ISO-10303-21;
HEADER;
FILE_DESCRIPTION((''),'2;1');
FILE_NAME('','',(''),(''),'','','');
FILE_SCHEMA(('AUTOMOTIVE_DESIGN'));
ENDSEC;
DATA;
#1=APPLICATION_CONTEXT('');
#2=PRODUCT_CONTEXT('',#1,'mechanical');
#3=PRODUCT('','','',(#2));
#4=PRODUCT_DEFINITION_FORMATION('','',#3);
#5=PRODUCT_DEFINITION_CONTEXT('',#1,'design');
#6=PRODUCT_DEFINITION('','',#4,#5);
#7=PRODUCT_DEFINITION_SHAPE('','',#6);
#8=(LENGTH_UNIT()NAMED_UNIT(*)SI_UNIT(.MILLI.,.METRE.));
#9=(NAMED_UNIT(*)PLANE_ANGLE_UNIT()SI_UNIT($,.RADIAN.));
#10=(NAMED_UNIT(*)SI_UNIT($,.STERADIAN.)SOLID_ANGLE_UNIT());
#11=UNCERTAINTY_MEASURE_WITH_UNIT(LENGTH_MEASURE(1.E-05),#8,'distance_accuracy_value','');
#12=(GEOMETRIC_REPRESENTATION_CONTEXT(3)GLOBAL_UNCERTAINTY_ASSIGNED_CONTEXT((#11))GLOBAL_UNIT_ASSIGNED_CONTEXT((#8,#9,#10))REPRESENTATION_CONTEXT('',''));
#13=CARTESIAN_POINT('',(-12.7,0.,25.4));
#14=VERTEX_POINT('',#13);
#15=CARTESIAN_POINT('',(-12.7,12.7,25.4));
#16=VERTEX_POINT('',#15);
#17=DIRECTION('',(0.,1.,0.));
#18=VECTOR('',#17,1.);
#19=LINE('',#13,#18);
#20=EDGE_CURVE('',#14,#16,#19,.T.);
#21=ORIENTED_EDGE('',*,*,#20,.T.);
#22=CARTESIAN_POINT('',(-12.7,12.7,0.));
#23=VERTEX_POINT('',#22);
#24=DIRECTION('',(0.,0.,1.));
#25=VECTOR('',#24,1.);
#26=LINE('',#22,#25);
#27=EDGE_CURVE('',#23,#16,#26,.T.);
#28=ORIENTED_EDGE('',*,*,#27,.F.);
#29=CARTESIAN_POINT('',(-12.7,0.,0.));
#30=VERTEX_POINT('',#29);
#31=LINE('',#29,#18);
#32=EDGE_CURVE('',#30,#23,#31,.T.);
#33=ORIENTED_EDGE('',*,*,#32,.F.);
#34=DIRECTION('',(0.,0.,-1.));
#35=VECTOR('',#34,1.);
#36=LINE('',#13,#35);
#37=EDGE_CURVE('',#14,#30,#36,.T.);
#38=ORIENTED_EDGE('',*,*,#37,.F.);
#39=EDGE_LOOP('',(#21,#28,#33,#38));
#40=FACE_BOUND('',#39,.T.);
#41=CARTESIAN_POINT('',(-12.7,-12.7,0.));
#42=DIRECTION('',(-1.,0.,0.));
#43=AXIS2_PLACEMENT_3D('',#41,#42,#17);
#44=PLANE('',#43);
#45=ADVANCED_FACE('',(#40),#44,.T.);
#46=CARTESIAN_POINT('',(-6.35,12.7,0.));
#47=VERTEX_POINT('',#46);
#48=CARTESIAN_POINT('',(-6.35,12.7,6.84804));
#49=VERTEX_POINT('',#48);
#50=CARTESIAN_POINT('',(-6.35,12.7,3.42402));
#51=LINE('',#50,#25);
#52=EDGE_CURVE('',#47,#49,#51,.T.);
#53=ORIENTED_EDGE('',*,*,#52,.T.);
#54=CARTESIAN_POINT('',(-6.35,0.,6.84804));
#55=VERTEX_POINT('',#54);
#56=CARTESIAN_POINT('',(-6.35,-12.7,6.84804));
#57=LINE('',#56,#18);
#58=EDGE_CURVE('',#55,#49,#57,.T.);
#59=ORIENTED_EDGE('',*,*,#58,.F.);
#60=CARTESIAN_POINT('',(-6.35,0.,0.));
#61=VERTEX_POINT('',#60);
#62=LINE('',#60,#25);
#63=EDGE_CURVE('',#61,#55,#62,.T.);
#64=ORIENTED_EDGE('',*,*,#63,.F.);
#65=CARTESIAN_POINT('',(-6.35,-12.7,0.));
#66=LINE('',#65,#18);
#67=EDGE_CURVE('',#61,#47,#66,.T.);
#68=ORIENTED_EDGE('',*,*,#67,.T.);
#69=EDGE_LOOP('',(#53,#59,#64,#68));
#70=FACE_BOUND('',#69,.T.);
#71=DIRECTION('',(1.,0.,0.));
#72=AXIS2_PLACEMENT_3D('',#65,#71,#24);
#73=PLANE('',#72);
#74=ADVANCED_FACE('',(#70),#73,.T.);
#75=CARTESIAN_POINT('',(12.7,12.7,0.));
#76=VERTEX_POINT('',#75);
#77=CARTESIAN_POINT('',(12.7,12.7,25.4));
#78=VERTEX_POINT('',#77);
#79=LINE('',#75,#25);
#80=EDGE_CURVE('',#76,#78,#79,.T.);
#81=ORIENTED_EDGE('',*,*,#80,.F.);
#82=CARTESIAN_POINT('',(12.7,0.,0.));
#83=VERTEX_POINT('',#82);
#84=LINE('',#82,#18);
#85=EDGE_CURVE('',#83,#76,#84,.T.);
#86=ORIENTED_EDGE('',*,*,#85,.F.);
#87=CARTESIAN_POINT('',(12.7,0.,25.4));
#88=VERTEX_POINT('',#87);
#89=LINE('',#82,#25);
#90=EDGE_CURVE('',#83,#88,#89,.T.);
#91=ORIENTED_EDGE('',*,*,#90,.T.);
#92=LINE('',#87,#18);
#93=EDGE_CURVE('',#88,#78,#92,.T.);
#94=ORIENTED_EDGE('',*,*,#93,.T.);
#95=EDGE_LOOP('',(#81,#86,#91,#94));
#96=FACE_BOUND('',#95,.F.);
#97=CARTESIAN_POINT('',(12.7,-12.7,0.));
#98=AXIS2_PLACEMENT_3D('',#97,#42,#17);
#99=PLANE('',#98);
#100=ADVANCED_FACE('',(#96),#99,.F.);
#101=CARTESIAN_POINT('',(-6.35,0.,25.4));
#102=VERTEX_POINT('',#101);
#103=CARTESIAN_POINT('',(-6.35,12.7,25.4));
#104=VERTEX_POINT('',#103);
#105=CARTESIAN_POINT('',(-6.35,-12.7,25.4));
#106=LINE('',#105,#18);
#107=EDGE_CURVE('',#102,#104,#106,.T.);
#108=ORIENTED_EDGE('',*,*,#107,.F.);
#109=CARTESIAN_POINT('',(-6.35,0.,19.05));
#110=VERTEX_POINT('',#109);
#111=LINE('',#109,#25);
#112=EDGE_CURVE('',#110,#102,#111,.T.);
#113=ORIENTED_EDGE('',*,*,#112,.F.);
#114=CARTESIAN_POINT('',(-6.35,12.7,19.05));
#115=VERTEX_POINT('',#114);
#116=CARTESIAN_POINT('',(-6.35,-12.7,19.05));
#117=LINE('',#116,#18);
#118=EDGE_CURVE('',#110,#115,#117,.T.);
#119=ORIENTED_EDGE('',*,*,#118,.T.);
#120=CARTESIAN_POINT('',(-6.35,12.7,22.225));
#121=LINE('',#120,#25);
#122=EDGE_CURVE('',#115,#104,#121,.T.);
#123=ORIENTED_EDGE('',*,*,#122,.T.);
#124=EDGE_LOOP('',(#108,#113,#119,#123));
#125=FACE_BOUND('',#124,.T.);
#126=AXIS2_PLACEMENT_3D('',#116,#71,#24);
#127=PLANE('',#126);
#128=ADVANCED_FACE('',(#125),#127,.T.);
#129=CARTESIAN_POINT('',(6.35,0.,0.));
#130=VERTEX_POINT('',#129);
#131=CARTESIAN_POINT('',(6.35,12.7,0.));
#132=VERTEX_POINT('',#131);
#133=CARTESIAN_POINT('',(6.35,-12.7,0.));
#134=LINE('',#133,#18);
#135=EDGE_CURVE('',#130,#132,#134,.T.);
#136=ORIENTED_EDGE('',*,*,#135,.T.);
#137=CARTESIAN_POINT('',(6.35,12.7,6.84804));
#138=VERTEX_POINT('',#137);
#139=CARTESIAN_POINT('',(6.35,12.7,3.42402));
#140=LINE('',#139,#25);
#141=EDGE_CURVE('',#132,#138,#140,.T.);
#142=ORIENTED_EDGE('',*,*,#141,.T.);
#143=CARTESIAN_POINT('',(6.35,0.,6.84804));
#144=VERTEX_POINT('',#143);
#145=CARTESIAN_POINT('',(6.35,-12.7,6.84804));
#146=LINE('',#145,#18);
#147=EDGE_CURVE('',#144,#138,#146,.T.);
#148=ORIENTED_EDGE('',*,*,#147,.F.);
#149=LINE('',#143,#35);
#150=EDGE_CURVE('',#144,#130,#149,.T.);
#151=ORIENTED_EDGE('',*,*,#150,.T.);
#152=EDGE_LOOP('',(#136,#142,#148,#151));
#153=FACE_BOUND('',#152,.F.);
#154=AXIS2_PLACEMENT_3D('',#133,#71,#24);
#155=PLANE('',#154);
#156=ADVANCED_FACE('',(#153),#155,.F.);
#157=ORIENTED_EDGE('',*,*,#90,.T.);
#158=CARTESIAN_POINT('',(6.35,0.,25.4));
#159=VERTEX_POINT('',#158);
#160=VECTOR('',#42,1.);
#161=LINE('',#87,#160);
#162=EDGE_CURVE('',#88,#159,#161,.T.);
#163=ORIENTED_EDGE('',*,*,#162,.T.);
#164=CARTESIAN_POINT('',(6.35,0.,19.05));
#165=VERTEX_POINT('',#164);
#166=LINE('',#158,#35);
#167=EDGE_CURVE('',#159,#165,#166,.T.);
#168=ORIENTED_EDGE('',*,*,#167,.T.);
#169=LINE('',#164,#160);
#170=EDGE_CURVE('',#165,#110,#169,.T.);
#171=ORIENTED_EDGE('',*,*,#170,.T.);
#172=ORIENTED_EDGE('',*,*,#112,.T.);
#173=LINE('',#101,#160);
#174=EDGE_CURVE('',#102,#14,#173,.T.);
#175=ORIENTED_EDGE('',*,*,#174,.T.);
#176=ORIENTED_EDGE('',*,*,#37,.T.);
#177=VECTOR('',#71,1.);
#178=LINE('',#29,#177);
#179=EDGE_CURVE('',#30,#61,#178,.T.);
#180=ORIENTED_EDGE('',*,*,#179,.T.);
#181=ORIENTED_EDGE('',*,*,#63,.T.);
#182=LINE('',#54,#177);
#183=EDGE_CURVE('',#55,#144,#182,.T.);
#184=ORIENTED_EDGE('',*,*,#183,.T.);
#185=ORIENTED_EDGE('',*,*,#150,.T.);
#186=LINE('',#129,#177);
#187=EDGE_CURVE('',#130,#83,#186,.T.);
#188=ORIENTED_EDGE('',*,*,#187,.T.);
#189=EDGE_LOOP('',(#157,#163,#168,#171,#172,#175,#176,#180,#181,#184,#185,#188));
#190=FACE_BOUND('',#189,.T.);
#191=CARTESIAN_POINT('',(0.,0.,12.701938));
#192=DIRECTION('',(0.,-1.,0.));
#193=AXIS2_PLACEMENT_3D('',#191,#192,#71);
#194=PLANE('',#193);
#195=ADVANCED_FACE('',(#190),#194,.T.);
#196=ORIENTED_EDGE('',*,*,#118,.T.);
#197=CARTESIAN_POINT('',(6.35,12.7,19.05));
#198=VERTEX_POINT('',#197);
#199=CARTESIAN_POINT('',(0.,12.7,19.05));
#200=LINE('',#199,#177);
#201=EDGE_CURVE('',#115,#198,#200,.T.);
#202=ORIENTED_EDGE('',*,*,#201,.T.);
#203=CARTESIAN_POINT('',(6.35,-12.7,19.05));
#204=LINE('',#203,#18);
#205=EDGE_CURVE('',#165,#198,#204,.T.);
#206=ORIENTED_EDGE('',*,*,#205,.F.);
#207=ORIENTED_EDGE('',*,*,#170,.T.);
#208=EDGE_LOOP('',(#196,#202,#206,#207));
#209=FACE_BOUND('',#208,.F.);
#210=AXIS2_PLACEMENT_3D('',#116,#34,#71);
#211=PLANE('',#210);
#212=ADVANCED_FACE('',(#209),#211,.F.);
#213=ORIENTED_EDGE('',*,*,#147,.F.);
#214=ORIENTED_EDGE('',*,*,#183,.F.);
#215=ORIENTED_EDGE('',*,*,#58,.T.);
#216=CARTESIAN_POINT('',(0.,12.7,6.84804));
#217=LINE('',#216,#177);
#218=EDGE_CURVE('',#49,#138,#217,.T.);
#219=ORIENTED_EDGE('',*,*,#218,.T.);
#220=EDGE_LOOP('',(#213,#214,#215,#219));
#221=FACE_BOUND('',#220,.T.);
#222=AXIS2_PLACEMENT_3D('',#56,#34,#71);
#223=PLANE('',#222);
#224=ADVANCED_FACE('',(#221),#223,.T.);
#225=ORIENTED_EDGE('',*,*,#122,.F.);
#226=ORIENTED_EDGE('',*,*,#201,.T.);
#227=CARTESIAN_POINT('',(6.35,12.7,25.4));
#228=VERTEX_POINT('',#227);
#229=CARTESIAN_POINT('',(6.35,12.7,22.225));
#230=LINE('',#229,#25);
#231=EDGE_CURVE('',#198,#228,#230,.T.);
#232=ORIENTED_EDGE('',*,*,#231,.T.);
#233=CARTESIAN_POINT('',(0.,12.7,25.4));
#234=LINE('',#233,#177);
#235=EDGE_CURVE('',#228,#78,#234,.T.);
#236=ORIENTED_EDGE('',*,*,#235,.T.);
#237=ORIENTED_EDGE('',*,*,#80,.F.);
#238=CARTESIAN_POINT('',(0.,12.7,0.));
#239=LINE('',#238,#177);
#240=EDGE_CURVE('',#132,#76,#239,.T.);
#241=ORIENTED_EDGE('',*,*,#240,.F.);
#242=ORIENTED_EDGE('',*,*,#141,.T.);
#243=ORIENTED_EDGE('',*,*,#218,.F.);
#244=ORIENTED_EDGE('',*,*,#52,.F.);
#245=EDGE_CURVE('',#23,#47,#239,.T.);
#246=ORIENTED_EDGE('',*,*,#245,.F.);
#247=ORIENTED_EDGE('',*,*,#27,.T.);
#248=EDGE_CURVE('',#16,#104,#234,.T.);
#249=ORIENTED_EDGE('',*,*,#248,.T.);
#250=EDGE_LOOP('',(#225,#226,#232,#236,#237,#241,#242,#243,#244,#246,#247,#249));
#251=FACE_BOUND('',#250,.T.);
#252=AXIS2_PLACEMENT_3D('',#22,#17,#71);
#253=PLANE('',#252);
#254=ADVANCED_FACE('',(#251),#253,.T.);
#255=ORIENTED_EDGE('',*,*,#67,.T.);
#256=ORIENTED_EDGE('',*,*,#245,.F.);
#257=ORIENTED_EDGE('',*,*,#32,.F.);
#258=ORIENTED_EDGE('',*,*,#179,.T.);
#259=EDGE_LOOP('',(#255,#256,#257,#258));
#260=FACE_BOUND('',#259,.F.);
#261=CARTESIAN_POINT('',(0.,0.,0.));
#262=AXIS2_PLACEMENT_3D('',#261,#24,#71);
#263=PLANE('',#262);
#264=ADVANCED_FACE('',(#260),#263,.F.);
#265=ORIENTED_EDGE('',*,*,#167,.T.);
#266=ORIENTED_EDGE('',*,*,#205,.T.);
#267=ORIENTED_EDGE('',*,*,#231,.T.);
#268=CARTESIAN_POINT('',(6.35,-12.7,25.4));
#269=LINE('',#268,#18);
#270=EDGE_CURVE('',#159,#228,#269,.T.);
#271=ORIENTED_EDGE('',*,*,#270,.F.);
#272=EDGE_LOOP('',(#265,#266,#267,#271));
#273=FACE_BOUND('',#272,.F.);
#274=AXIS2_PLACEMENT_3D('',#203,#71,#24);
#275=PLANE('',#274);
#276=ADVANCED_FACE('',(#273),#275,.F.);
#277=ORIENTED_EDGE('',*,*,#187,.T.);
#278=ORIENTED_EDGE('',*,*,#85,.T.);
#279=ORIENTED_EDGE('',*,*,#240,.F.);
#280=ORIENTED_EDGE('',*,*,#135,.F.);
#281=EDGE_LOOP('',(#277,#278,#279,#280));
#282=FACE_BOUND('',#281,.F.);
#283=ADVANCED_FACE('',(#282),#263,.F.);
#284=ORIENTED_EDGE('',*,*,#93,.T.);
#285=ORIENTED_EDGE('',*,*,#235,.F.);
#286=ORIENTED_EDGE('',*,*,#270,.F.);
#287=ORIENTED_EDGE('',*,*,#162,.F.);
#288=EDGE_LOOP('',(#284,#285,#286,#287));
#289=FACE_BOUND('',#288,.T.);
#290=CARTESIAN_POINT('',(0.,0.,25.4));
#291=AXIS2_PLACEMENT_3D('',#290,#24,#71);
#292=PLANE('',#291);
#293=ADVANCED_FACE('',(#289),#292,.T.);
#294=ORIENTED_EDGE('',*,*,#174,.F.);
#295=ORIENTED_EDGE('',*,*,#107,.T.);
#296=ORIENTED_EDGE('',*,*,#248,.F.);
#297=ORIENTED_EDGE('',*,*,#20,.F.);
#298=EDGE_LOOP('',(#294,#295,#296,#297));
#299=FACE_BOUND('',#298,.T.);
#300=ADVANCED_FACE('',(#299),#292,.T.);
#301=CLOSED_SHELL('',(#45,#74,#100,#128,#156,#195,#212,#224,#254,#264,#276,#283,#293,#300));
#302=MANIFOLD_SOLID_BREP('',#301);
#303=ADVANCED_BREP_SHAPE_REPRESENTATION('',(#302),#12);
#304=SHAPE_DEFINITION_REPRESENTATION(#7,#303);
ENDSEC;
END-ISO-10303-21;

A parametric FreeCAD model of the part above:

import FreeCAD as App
import Part
import Sketcher

V = App.Vector
Q = App.Units.Quantity


def add_polygon(sketch, points):
    """Adds a closed chain of lines whose ends are joined by coincident constraints."""
    first, n = sketch.GeometryCount, len(points)
    for a, b in zip(points, points[1:] + points[:1]):
        sketch.addGeometry(Part.LineSegment(App.Vector(*a, 0), App.Vector(*b, 0)), False)
    for i in range(n):
        sketch.addConstraint(Sketcher.Constraint("Coincident", first + i, 2, first + (i + 1) % n, 1))

doc = App.newDocument("Part")
body = doc.addObject("PartDesign::Body", "Body")

sketch1 = body.newObject("Sketcher::SketchObject", "Sketch")
sketch1.AttachmentSupport = (doc.getObject("XY_Plane"), [""])
sketch1.MapMode = "FlatFace"
add_polygon(sketch1, [(-12.7, 12.7), (-12.7, -12.7), (12.7, -12.7), (12.7, 12.7)])
sketch1.addConstraint([
    Sketcher.Constraint("Vertical", 0),
    Sketcher.Constraint("Horizontal", 1),
    Sketcher.Constraint("Vertical", 2),
    Sketcher.Constraint("Horizontal", 3),
    Sketcher.Constraint("Symmetric", 0, 2, 2, 2, -1, 1),
    Sketcher.Constraint("Equal", 3, 0),
    Sketcher.Constraint("DistanceX", 1, 1, 1, 2, Q("1 in")),
])
pad1 = body.newObject("PartDesign::Pad", "Pad")
pad1.Profile = sketch1
pad1.Length = Q("1 in")

sketch2 = body.newObject("Sketcher::SketchObject", "Sketch001")
sketch2.AttachmentSupport = (doc.getObject("XZ_Plane"), [""])
sketch2.MapMode = "FlatFace"
sketch2.AttachmentOffset = App.Placement(V(0, 0, 0.5 * 25.4), App.Rotation())
add_polygon(sketch2, [(-6.35, 25.4), (-6.35, 19.05), (6.35, 19.05), (6.35, 25.4)])
sketch2.addConstraint([
    Sketcher.Constraint("Vertical", 0),
    Sketcher.Constraint("Horizontal", 1),
    Sketcher.Constraint("Vertical", 2),
    Sketcher.Constraint("Horizontal", 3),
    Sketcher.Constraint("DistanceX", 1, 1, 1, 2, Q("0.5 in")),
    Sketcher.Constraint("DistanceY", -1, 1, 2, 2, Q("1 in")),
    Sketcher.Constraint("DistanceY", 0, 2, 0, 1, Q("0.25 in")),
    Sketcher.Constraint("DistanceX", 0, 2, -1, 1, Q("0.25 in")),
])
pocket1 = body.newObject("PartDesign::Pocket", "Pocket")
pocket1.Profile = sketch2
pocket1.Length = Q("1 in")

sketch3 = body.newObject("Sketcher::SketchObject", "Sketch002")
sketch3.AttachmentSupport = (doc.getObject("XZ_Plane"), [""])
sketch3.MapMode = "FlatFace"
sketch3.AttachmentOffset = App.Placement(V(0, 0, 0.5 * 25.4), App.Rotation())
add_polygon(sketch3, [(-6.35, 6.84804), (-6.35, 0), (6.35, 0), (6.35, 6.84804)])
sketch3.addConstraint([
    Sketcher.Constraint("Vertical", 0),
    Sketcher.Constraint("Horizontal", 1),
    Sketcher.Constraint("Vertical", 2),
    Sketcher.Constraint("Horizontal", 3),
    Sketcher.Constraint("Symmetric", 0, 2, 1, 2, -1, 1),
    Sketcher.Constraint("DistanceX", 1, 1, 1, 2, Q("0.5 in")),
    Sketcher.Constraint("DistanceY", 0, 2, 0, 1, Q("6.84804 mm")),
])
pocket2 = body.newObject("PartDesign::Pocket", "Pocket001")
pocket2.Profile = sketch3
pocket2.Length = Q("1 in")

sketch4 = body.newObject("Sketcher::SketchObject", "Sketch003")
sketch4.AttachmentSupport = (doc.getObject("XZ_Plane"), [""])
sketch4.MapMode = "FlatFace"
sketch4.AttachmentOffset = App.Placement(V(0, 0, 0.5 * 25.4), App.Rotation())
add_polygon(sketch4, [(-12.7, 0), (-6.35, 0), (-6.35, 6.84804), (6.35, 6.84804), (6.35, 0), (12.7, 0), (12.7, 25.4), (6.35, 25.4), (6.35, 19.05), (-6.35, 19.05), (-6.35, 25.4), (-12.7, 25.4)])
sketch4.addConstraint([
    Sketcher.Constraint("Horizontal", 0),
    Sketcher.Constraint("Vertical", 1),
    Sketcher.Constraint("Horizontal", 2),
    Sketcher.Constraint("Vertical", 3),
    Sketcher.Constraint("Horizontal", 4),
    Sketcher.Constraint("Vertical", 5),
    Sketcher.Constraint("Horizontal", 6),
    Sketcher.Constraint("Vertical", 7),
    Sketcher.Constraint("Horizontal", 8),
    Sketcher.Constraint("Vertical", 9),
    Sketcher.Constraint("Horizontal", 10),
    Sketcher.Constraint("Vertical", 11),
    Sketcher.Constraint("Symmetric", 0, 2, 3, 2, -1, 1),
    Sketcher.Constraint("Symmetric", 6, 2, 9, 2, -2),
    Sketcher.Constraint("Symmetric", 4, 2, 11, 2, -2),
    Sketcher.Constraint("Vertical", 3, 2, 6, 2),
    Sketcher.Constraint("Equal", 10, 7),
    Sketcher.Constraint("DistanceY", 5, 1, 5, 2, Q("1 in")),
    Sketcher.Constraint("DistanceX", 2, 1, 2, 2, Q("0.5 in")),
    Sketcher.Constraint("DistanceX", 0, 1, 0, 2, Q("0.25 in")),
    Sketcher.Constraint("DistanceY", 1, 1, 1, 2, Q("6.84804 mm")),
])
pocket3 = body.newObject("PartDesign::Pocket", "Pocket002")
pocket3.Profile = sketch4
pocket3.Length = Q("0.5 in")

doc.recompute()
